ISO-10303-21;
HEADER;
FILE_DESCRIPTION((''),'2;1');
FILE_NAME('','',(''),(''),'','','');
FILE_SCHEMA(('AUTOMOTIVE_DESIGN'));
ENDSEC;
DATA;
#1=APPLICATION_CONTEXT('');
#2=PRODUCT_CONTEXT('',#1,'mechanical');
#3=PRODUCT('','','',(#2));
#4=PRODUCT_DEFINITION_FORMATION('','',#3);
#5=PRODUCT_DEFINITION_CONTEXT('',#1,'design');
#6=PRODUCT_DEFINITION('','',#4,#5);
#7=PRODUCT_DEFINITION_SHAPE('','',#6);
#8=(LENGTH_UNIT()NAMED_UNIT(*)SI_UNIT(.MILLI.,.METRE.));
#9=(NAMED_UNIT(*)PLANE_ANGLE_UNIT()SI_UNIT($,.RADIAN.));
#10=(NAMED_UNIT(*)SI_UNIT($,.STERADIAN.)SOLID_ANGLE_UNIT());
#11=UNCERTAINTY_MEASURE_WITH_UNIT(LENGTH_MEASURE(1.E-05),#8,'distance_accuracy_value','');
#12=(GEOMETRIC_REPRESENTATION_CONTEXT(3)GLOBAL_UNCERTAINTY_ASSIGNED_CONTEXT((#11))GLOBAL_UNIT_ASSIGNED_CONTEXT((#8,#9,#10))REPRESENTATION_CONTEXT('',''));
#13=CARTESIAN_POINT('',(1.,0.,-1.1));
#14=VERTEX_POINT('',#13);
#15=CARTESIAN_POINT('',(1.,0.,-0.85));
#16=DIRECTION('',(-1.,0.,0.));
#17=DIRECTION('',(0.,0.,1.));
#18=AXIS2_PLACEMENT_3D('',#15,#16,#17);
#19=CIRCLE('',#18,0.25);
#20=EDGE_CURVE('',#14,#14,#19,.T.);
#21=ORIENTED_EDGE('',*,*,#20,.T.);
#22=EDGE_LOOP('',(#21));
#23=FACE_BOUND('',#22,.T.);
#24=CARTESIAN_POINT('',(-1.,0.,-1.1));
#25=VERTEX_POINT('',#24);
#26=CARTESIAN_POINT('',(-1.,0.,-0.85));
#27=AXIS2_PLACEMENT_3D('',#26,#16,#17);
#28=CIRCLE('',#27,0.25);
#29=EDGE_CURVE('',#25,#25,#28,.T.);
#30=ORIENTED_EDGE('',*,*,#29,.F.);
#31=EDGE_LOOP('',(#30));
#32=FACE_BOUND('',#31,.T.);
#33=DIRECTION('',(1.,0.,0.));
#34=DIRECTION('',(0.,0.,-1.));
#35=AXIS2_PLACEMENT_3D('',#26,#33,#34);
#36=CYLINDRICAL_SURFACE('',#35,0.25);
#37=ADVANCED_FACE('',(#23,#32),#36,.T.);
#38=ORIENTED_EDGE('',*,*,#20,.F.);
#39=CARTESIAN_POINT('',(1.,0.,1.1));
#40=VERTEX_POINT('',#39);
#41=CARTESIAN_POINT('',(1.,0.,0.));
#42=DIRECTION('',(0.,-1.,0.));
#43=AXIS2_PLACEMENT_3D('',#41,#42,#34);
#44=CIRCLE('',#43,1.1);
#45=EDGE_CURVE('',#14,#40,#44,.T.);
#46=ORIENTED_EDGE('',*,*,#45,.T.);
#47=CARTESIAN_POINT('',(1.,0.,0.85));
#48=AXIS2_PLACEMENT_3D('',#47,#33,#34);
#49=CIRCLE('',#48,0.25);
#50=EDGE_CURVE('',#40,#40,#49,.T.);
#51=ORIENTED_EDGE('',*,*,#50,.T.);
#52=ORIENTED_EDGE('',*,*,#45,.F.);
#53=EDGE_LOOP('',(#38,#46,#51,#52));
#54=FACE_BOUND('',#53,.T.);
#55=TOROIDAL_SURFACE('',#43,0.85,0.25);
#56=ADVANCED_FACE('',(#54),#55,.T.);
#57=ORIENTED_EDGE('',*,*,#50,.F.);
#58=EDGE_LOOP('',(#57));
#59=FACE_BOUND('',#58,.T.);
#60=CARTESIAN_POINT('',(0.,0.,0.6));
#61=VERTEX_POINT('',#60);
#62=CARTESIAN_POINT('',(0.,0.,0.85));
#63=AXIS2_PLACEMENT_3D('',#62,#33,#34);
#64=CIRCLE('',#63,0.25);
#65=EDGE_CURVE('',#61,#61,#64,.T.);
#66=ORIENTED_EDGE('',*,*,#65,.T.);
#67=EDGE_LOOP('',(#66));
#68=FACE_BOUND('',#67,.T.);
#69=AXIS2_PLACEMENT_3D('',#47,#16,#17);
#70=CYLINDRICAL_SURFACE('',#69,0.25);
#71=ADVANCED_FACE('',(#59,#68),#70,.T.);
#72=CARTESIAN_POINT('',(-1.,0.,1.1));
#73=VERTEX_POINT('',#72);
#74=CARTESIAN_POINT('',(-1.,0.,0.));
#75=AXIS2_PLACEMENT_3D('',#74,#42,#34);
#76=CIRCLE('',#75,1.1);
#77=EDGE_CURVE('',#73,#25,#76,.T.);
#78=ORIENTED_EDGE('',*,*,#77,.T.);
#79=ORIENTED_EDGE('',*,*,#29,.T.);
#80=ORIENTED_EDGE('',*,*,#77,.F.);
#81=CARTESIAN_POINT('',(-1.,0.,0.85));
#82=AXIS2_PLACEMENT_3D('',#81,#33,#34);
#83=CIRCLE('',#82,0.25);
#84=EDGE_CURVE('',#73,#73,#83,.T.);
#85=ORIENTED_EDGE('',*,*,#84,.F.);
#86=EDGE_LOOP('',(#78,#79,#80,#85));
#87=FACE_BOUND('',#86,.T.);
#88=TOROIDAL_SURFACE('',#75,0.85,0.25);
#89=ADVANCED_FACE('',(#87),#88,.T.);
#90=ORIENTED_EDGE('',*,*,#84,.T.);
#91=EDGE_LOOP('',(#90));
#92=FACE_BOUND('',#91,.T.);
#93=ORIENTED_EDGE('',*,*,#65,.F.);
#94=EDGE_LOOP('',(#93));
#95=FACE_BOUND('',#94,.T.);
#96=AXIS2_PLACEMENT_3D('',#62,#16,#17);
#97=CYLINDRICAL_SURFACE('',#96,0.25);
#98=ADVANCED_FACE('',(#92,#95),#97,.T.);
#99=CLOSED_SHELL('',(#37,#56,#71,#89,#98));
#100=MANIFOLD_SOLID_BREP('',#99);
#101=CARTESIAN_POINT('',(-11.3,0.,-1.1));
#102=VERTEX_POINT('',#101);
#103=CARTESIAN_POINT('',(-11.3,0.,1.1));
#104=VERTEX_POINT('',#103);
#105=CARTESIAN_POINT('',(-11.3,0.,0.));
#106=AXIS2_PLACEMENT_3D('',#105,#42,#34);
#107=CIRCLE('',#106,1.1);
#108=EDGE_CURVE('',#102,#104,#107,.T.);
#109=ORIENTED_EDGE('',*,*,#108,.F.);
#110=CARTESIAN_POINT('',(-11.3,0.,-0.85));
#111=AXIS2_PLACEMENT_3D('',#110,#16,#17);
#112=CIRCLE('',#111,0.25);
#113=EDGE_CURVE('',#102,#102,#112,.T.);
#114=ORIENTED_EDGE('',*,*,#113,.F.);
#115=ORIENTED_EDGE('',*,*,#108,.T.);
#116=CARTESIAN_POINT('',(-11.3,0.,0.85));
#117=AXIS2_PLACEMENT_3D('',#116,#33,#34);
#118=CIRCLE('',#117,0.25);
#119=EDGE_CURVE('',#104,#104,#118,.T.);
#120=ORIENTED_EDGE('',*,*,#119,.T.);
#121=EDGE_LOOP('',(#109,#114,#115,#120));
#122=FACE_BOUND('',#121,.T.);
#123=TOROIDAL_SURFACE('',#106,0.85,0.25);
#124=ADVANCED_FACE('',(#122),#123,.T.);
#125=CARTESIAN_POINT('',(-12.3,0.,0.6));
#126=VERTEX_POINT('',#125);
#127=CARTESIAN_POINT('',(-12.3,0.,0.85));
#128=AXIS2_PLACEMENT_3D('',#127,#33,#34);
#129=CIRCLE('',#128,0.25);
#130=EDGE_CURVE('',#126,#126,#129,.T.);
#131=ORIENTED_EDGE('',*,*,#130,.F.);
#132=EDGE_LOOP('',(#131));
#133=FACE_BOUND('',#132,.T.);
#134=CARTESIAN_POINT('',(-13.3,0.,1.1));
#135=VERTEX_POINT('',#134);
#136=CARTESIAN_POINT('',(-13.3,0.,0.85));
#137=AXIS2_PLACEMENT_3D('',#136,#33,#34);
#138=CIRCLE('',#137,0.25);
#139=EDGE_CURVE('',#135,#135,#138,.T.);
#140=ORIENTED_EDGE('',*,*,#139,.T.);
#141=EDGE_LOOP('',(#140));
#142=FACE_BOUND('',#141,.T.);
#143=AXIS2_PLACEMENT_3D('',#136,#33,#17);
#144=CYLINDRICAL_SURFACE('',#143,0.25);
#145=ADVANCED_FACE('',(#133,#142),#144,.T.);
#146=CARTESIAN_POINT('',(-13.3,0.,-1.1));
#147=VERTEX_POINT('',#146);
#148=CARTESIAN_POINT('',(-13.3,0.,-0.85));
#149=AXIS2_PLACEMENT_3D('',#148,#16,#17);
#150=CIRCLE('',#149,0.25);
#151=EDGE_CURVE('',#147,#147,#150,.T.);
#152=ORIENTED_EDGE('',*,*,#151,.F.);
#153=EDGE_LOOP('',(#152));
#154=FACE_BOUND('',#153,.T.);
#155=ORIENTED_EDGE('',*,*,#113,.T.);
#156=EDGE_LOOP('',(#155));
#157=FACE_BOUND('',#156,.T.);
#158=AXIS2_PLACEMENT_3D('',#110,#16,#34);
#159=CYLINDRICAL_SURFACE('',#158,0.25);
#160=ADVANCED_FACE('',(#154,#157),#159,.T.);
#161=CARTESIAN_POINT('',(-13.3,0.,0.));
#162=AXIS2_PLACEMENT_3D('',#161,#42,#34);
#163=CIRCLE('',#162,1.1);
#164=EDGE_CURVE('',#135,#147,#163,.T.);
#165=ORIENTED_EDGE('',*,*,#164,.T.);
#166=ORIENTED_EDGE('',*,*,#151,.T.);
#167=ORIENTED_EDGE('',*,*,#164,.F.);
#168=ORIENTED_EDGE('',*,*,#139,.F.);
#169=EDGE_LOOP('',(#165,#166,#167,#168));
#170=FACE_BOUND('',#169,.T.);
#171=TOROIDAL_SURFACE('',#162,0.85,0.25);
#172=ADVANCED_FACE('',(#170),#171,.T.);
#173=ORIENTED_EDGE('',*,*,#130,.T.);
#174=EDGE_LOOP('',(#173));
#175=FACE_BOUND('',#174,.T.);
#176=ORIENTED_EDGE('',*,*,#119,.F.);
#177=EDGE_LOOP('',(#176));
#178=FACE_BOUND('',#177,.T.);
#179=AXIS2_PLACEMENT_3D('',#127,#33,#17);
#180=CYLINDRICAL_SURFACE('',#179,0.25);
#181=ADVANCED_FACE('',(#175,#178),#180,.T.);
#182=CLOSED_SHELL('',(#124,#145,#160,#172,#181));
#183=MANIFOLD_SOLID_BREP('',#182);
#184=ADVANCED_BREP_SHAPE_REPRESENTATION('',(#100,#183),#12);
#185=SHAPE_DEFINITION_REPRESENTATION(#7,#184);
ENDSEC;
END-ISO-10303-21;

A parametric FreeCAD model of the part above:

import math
import FreeCAD as App
import Part
import Sketcher

V = App.Vector
Q = App.Units.Quantity

doc = App.newDocument("Part")
body = doc.addObject("PartDesign::Body", "Body")

# Sketch on YZ plane
sketch1 = doc.addObject("Sketcher::SketchObject", "Sketch")
body.addObject(sketch1)
sketch1.AttachmentSupport = (doc.YZ_Plane, [""])
sketch1.MapMode = "FlatFace"
sketch1.addGeometry(Part.Circle(V(0, 0.85, 0), V(0, 0, 1), 0.25), False)
sketch1.addConstraint([
    Sketcher.Constraint("PointOnObject", 0, 3, -2),
    Sketcher.Constraint("Diameter", 0, Q("0.5 mm")),
    Sketcher.Constraint("DistanceY", -1, 1, 0, 3, Q("0.85 mm")),
])

# Sketch on XZ plane
sketch2 = doc.addObject("Sketcher::SketchObject", "Sketch001")
body.addObject(sketch2)
sketch2.AttachmentSupport = (doc.XZ_Plane, [""])
sketch2.MapMode = "FlatFace"
sketch2.addGeometry([
    Part.LineSegment(V(-1, -0.8, 0), V(1, -0.8, 0)),
    Part.ArcOfCircle(Part.Circle(V(1, 0, 0), V(0, 0, 1), 0.8), math.radians(-90), math.radians(90)),
    Part.LineSegment(V(1, 0.8, 0), V(-1, 0.8, 0)),
    Part.ArcOfCircle(Part.Circle(V(-1, 0, 0), V(0, 0, 1), 0.8), math.radians(90), math.radians(270)),
], False)
sketch2.addConstraint([
    Sketcher.Constraint("Tangent", 0, 2, 1, 1),
    Sketcher.Constraint("Tangent", 1, 2, 2, 1),
    Sketcher.Constraint("Tangent", 2, 2, 3, 1),
    Sketcher.Constraint("Tangent", 3, 2, 0, 1),
    Sketcher.Constraint("Horizontal", 0),
    Sketcher.Constraint("Horizontal", 2),
    Sketcher.Constraint("Symmetric", 1, 3, 3, 3, -1, 1),
    Sketcher.Constraint("DistanceX", 0, 1, 0, 2, Q("2 mm")),
    Sketcher.Constraint("Radius", 1, Q("0.85 mm")),
])
doc.recompute()

additivepipe = doc.addObject("PartDesign::AdditivePipe", "AdditivePipe")
body.addObject(additivepipe)
additivepipe.Profile = sketch1
additivepipe.Spine = (sketch2, ["Edge1", "Edge2", "Edge3", "Edge4"])
body2 = doc.addObject("PartDesign::Body", "Body001")
doc.recompute()

mirroring = doc.addObject("Part::Mirroring", "Mirroring")
mirroring.Source = body
mirroring.Base = V(-6.15, 0, 0)
mirroring.Normal = V(1, 0, 0)
body2.BaseFeature = mirroring
doc.recompute()
mirroring.Visibility = False

doc.recompute()
